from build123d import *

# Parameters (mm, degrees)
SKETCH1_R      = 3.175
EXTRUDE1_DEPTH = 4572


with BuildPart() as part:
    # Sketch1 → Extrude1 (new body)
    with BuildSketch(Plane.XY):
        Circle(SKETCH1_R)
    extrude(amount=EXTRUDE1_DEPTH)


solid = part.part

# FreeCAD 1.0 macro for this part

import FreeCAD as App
import Part
import Sketcher
Q = App.Units.Quantity

doc = App.newDocument("Part")
body = doc.addObject("PartDesign::Body", "Body")

sketch1 = body.newObject("Sketcher::SketchObject", "Sketch")
sketch1.AttachmentSupport = (doc.getObject("XY_Plane"), [""])
sketch1.MapMode = "FlatFace"
sketch1.addGeometry(Part.Circle(App.Vector(0, 0, 0), App.Vector(0, 0, 1), 3.2), False)
sketch1.addConstraint([
    Sketcher.Constraint("Coincident", 0, 3, -1, 1),
    Sketcher.Constraint("Diameter", 0, Q("0.25 in")),
])
pad1 = body.newObject("PartDesign::Pad", "Pad")
pad1.Profile = sketch1
pad1.Length = Q("180 in")

doc.recompute()
